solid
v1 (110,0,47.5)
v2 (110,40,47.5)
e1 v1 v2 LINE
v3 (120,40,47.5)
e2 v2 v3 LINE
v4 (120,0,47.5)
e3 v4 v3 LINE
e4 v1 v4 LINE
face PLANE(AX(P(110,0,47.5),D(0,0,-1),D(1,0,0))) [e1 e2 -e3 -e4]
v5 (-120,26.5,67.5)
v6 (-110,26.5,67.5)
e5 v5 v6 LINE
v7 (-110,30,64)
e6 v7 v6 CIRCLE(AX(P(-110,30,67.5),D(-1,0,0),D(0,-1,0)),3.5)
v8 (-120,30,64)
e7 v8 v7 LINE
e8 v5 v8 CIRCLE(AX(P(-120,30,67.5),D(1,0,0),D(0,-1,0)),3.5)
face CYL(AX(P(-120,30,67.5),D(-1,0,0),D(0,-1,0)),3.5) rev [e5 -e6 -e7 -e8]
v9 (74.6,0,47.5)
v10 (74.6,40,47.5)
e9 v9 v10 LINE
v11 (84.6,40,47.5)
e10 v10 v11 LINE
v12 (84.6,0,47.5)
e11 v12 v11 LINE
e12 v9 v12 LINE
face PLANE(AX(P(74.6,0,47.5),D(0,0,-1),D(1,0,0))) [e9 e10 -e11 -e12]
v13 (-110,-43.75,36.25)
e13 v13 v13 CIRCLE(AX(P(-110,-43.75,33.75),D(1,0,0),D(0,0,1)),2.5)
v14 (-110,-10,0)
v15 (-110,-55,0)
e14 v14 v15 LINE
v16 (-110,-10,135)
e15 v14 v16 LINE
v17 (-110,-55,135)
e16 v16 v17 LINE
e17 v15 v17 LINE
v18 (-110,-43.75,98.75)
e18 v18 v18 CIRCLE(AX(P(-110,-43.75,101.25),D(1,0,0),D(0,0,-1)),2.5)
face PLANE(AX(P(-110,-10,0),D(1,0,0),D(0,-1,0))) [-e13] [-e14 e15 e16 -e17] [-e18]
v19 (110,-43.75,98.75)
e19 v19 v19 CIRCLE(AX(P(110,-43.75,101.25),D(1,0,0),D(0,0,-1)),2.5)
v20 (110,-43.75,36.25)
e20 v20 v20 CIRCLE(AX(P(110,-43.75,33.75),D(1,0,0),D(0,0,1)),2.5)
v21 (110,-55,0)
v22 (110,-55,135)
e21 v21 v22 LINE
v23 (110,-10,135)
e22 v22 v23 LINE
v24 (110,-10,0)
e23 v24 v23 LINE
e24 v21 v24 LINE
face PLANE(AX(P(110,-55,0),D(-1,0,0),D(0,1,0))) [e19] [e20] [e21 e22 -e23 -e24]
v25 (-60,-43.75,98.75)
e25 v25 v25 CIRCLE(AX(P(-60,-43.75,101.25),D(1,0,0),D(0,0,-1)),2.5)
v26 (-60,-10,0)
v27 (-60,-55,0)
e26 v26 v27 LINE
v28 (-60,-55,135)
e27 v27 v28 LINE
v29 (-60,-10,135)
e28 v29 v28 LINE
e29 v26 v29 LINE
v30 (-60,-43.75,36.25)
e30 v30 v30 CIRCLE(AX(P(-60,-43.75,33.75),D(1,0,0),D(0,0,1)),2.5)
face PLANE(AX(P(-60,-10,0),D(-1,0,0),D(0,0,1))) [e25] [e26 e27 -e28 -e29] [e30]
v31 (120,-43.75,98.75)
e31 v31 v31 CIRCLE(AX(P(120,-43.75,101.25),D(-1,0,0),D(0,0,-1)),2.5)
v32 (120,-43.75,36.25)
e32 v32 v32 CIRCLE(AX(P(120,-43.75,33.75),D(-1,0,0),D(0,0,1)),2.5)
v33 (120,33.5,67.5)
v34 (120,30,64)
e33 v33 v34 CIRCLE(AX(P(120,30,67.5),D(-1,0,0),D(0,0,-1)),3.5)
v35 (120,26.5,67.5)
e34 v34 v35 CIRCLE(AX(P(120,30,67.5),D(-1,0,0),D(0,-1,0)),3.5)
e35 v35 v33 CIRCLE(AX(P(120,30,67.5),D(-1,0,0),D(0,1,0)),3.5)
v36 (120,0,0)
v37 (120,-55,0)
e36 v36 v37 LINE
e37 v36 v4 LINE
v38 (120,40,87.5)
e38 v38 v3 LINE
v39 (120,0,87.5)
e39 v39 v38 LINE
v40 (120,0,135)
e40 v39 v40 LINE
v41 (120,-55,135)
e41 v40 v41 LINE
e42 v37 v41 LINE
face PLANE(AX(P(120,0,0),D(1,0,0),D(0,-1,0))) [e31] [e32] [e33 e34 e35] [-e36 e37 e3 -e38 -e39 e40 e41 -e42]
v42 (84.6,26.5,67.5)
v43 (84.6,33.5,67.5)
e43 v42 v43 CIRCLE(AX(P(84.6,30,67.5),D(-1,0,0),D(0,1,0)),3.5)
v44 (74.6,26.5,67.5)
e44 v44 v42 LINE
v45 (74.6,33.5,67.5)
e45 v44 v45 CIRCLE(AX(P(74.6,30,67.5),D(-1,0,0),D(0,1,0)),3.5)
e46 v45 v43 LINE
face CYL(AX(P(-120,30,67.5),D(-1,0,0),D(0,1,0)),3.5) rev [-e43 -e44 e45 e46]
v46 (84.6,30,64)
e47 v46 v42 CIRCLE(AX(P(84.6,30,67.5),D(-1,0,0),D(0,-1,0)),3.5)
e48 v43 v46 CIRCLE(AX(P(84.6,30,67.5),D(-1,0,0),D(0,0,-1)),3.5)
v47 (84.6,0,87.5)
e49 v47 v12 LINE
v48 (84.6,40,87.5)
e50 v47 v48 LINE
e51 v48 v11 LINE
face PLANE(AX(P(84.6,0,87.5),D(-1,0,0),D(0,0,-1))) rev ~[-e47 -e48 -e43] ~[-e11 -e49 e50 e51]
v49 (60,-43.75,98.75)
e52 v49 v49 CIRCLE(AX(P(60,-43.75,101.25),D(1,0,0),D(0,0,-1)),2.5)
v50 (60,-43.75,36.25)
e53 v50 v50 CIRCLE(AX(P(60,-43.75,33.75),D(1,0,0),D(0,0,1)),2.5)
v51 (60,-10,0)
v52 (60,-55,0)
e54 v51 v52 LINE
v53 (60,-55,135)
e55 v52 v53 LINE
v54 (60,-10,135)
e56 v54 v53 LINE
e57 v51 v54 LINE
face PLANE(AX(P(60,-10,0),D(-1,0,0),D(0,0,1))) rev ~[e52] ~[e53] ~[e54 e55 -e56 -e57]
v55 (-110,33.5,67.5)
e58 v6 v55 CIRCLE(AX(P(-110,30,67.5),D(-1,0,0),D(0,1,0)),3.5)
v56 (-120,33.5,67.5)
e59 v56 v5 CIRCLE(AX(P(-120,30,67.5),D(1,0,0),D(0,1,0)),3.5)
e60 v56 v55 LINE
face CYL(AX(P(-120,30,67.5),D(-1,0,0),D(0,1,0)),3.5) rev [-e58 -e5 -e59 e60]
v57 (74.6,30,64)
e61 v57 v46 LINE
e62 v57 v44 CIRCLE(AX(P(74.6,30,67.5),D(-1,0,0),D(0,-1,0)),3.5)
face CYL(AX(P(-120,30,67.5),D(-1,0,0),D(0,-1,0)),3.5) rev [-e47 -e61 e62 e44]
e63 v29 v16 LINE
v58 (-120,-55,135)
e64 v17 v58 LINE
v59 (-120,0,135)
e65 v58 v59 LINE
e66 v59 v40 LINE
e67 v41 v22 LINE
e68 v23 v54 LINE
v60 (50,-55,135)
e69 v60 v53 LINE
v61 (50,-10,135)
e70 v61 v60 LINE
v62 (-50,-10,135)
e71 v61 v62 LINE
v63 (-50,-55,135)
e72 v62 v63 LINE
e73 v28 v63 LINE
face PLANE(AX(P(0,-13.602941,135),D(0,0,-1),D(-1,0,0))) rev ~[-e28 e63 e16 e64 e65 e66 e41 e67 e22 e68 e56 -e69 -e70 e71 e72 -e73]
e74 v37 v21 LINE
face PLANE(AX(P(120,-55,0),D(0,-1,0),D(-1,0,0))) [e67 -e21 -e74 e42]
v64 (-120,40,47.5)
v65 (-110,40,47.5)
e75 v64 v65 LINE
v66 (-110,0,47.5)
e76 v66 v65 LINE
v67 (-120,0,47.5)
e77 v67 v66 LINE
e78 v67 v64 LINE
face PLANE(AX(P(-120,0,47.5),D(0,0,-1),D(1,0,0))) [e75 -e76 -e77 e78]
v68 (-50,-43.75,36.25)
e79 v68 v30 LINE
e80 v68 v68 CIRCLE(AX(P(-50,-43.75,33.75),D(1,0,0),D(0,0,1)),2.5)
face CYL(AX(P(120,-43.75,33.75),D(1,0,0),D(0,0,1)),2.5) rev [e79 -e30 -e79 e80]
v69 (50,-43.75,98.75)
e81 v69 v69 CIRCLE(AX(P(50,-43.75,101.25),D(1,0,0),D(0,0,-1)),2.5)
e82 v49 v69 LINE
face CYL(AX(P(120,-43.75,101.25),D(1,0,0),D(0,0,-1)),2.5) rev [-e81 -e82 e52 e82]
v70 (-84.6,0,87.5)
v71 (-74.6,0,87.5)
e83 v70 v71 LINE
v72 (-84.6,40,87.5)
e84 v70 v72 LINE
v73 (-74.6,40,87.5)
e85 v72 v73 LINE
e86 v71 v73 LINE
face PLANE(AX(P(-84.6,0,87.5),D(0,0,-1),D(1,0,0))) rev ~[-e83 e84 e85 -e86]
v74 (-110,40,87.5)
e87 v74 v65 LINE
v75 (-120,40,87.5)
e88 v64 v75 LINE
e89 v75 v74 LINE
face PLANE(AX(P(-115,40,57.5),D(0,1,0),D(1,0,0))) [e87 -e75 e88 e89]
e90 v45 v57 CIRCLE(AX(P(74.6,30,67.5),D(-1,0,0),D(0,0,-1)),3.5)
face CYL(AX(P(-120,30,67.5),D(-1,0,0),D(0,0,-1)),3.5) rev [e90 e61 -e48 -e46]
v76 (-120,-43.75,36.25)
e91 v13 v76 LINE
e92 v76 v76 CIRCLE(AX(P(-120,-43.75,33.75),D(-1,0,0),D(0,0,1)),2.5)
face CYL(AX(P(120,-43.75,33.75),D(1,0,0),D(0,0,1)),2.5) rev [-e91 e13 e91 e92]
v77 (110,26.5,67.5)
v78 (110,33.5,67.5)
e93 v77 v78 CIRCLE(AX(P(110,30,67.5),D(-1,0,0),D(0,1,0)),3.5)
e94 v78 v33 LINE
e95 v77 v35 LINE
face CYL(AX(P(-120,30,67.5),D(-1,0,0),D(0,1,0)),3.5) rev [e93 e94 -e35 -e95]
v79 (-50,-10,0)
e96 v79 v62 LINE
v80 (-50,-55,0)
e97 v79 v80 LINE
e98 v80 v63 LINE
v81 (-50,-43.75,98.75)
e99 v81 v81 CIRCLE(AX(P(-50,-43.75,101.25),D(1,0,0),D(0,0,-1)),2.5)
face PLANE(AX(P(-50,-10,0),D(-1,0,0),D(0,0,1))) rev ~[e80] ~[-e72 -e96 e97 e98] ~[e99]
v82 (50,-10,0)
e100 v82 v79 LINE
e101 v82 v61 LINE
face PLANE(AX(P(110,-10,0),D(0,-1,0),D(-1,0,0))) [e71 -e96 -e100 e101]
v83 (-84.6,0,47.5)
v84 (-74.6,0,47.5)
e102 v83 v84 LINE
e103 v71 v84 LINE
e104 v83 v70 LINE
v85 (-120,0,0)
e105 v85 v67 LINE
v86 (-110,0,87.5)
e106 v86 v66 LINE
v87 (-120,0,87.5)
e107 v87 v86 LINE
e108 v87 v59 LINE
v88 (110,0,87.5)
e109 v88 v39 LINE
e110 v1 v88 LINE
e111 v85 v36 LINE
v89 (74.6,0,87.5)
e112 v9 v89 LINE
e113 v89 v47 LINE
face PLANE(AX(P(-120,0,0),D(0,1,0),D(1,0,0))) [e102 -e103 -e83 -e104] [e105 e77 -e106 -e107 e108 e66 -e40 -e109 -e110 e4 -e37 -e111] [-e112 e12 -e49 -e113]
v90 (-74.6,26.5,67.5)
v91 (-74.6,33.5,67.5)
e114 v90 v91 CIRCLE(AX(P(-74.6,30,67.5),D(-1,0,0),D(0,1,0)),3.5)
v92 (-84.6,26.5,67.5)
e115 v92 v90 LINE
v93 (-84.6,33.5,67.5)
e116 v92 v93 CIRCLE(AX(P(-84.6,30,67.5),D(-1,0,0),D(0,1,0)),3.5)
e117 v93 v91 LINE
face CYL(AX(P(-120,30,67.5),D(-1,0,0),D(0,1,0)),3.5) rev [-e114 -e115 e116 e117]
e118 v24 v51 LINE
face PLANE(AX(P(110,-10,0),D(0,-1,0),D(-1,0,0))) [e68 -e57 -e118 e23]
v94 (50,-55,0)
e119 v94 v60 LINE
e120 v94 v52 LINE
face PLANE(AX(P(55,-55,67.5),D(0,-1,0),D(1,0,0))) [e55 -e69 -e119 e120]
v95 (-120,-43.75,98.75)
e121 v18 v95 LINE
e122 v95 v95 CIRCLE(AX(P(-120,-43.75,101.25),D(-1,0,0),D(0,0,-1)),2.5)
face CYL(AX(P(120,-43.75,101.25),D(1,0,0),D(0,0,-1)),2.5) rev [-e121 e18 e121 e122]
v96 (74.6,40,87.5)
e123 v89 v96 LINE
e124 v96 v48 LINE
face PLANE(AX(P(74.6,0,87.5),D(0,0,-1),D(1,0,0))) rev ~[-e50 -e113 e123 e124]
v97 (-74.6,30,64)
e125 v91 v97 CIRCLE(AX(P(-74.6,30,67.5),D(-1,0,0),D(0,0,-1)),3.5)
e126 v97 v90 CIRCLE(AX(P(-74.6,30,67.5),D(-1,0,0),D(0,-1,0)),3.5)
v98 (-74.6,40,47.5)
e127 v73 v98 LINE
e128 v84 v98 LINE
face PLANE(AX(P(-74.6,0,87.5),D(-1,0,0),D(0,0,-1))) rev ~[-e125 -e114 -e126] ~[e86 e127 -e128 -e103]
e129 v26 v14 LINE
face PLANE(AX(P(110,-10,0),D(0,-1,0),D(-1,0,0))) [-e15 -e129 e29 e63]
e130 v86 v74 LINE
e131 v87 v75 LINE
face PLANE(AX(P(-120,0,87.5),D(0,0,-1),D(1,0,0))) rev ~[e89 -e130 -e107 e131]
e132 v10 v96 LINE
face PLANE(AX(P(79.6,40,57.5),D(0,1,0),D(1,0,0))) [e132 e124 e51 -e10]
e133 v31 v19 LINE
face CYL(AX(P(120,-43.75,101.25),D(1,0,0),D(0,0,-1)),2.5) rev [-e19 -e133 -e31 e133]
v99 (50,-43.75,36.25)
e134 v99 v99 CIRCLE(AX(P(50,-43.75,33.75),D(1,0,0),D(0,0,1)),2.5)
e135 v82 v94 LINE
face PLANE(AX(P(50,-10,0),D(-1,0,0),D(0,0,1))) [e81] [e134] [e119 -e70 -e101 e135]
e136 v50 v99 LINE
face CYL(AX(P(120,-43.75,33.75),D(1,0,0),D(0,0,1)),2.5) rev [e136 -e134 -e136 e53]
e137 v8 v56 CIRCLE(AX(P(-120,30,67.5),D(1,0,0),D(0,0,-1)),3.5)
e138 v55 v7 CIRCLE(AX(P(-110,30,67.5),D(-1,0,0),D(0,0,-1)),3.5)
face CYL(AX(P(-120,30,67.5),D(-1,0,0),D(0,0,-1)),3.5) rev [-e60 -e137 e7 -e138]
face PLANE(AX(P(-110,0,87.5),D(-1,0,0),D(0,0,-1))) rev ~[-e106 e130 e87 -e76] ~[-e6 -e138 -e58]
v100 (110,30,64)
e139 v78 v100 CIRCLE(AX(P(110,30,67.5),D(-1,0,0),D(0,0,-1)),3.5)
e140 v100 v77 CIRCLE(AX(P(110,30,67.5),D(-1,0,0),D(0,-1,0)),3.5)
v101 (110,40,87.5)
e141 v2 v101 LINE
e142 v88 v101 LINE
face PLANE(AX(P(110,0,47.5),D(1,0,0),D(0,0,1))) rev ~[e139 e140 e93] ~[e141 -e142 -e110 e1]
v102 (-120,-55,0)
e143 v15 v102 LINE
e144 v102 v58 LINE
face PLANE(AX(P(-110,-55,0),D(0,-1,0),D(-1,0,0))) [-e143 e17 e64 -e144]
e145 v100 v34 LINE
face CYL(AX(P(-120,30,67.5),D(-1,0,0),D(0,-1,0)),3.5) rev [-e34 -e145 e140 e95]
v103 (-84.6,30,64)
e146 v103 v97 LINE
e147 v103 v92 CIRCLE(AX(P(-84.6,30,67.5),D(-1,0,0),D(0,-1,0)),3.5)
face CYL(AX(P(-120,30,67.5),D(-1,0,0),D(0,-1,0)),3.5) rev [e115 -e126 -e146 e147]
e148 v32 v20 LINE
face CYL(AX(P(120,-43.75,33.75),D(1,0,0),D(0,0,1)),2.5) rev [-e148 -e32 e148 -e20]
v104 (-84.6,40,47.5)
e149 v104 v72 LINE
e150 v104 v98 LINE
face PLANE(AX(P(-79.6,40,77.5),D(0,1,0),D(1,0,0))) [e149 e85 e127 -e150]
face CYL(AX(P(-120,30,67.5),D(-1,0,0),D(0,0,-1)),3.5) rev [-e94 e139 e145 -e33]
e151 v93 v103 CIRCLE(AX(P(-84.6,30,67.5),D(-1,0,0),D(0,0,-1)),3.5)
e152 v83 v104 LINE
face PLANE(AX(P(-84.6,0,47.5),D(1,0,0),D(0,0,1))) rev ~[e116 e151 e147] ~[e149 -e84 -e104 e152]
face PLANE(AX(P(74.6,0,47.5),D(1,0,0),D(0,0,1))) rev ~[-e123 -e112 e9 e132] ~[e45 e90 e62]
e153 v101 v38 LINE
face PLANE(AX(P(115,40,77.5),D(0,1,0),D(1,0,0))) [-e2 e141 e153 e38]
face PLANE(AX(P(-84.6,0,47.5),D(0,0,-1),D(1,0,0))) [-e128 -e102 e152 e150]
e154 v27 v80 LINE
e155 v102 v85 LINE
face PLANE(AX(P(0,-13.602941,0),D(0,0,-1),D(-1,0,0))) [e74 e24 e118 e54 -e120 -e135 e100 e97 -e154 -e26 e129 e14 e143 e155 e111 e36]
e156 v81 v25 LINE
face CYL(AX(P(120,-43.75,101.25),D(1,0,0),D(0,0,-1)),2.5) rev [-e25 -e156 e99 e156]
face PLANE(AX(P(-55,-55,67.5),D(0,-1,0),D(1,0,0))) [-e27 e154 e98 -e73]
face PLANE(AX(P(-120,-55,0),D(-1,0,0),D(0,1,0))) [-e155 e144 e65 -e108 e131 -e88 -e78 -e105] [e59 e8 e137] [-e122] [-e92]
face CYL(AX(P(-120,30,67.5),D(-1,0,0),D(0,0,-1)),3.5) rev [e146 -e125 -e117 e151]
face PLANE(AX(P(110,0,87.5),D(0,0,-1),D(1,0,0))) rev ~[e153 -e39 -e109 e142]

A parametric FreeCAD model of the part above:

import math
import FreeCAD as App
import Part
import Sketcher
from FreeCAD import Vector
Q = App.Units.Quantity

doc = App.newDocument("Part")
body = doc.addObject("PartDesign::Body", "Body")

sketch1 = body.newObject("Sketcher::SketchObject", "Sketch")
sketch1.AttachmentSupport = (doc.getObject("XY_Plane"), [""])
sketch1.MapMode = "FlatFace"
sketch1.addGeometry([
    Part.LineSegment(Vector(120, 0, 0), Vector(-120, 0, 0)),
    Part.LineSegment(Vector(-120, 0, 0), Vector(-120, -55, 0)),
    Part.LineSegment(Vector(-120, -55, 0), Vector(-110, -55, 0)),
    Part.LineSegment(Vector(-110, -55, 0), Vector(-110, -10, 0)),
    Part.LineSegment(Vector(-110, -10, 0), Vector(110, -10, 0)),
    Part.LineSegment(Vector(110, -10, 0), Vector(110, -55, 0)),
    Part.LineSegment(Vector(110, -55, 0), Vector(120, -55, 0)),
    Part.LineSegment(Vector(120, -55, 0), Vector(120, 0, 0)),
], False)
sketch1.addConstraint([
    Sketcher.Constraint("Coincident", 0, 2, 1, 1),
    Sketcher.Constraint("Coincident", 1, 2, 2, 1),
    Sketcher.Constraint("Coincident", 2, 2, 3, 1),
    Sketcher.Constraint("Coincident", 3, 2, 4, 1),
    Sketcher.Constraint("Coincident", 4, 2, 5, 1),
    Sketcher.Constraint("Coincident", 5, 2, 6, 1),
    Sketcher.Constraint("Coincident", 6, 2, 7, 1),
    Sketcher.Constraint("Coincident", 7, 2, 0, 1),
    Sketcher.Constraint("Horizontal", 0),
    Sketcher.Constraint("Vertical", 1),
    Sketcher.Constraint("Horizontal", 2),
    Sketcher.Constraint("Vertical", 3),
    Sketcher.Constraint("Horizontal", 4),
    Sketcher.Constraint("Vertical", 5),
    Sketcher.Constraint("Horizontal", 6),
    Sketcher.Constraint("Vertical", 7),
    Sketcher.Constraint("Symmetric", 0, 2, 7, 2, -1, 1),
    Sketcher.Constraint("Symmetric", 2, 2, 5, 2, -2),
    Sketcher.Constraint("DistanceX", 0, 2, 0, 1, Q("240 mm")),
    Sketcher.Constraint("DistanceX", 2, 1, 2, 2, Q("10 mm")),
    Sketcher.Constraint("DistanceY", 1, 2, 1, 1, Q("55 mm")),
    Sketcher.Constraint("DistanceY", 3, 1, 3, 2, Q("45 mm")),
])
pad1 = body.newObject("PartDesign::Pad", "Pad")
pad1.Profile = sketch1
pad1.Length = 135

sketch2 = body.newObject("Sketcher::SketchObject", "Sketch001")
sketch2.AttachmentSupport = (doc.getObject("XZ_Plane"), [""])
sketch2.MapMode = "FlatFace"
sketch2.AttachmentOffset = App.Placement(Vector(0, 0, 10), App.Rotation())
sketch2.addGeometry([
    Part.LineSegment(Vector(50, 135, 0), Vector(50, 0, 0)),
    Part.LineSegment(Vector(50, 0, 0), Vector(60, 0, 0)),
    Part.LineSegment(Vector(60, 0, 0), Vector(60, 135, 0)),
    Part.LineSegment(Vector(60, 135, 0), Vector(50, 135, 0)),
    Part.LineSegment(Vector(-60, 135, 0), Vector(-60, 0, 0)),
    Part.LineSegment(Vector(-60, 0, 0), Vector(-50, 0, 0)),
    Part.LineSegment(Vector(-50, 0, 0), Vector(-50, 135, 0)),
    Part.LineSegment(Vector(-50, 135, 0), Vector(-60, 135, 0)),
], False)
sketch2.addConstraint([
    Sketcher.Constraint("Coincident", 0, 2, 1, 1),
    Sketcher.Constraint("Coincident", 1, 2, 2, 1),
    Sketcher.Constraint("Coincident", 2, 2, 3, 1),
    Sketcher.Constraint("Coincident", 3, 2, 0, 1),
    Sketcher.Constraint("Coincident", 4, 2, 5, 1),
    Sketcher.Constraint("Coincident", 5, 2, 6, 1),
    Sketcher.Constraint("Coincident", 6, 2, 7, 1),
    Sketcher.Constraint("Coincident", 7, 2, 4, 1),
    Sketcher.Constraint("Vertical", 0),
    Sketcher.Constraint("Horizontal", 1),
    Sketcher.Constraint("Vertical", 2),
    Sketcher.Constraint("Horizontal", 3),
    Sketcher.Constraint("Vertical", 4),
    Sketcher.Constraint("Horizontal", 5),
    Sketcher.Constraint("Vertical", 6),
    Sketcher.Constraint("Horizontal", 7),
    Sketcher.Constraint("Symmetric", 1, 2, 4, 2, -1, 1),
    Sketcher.Constraint("Symmetric", 0, 2, 5, 2, -2),
    Sketcher.Constraint("Horizontal", 3, 2, 6, 2),
    Sketcher.Constraint("DistanceX", 1, 1, 1, 2, Q("10 mm")),
    Sketcher.Constraint("DistanceY", 0, 2, 0, 1, Q("135 mm")),
    Sketcher.Constraint("DistanceX", -1, 1, 0, 2, Q("50 mm")),
])
pad2 = body.newObject("PartDesign::Pad", "Pad001")
pad2.Profile = sketch2
pad2.Length = 45

sketch3 = body.newObject("Sketcher::SketchObject", "Sketch002")
sketch3.AttachmentSupport = (doc.getObject("YZ_Plane"), [""])
sketch3.MapMode = "FlatFace"
sketch3.AttachmentOffset = App.Placement(Vector(0, 0, 110), App.Rotation())
sketch3.addGeometry([
    Part.Circle(Vector(-43.8, 33.8, 0), Vector(0, 0, 1), 2.5),
    Part.Circle(Vector(-43.8, 101.2, 0), Vector(0, 0, 1), 2.5),
], False)
sketch3.addConstraint([
    Sketcher.Constraint("Equal", 0, 1),
    Sketcher.Constraint("Vertical", 0, 3, 1, 3),
    Sketcher.Constraint("Diameter", 0, Q("5 mm")),
    Sketcher.Constraint("DistanceY", 0, 3, 1, 3, Q("67.5 mm")),
    Sketcher.Constraint("DistanceX", 0, 3, -1, 1, Q("43.75 mm")),
    Sketcher.Constraint("DistanceY", -1, 1, 0, 3, Q("33.75 mm")),
])
pocket1 = body.newObject("PartDesign::Pocket", "Pocket")
pocket1.Profile = sketch3
pocket1.Type = "ThroughAll"
pocket1.Midplane = True

sketch4 = body.newObject("Sketcher::SketchObject", "Sketch003")
sketch4.AttachmentSupport = (doc.getObject("XZ_Plane"), [""])
sketch4.MapMode = "FlatFace"
sketch4.addGeometry([
    Part.LineSegment(Vector(-120, 48, 0), Vector(-120, 88, 0)),
    Part.LineSegment(Vector(-120, 88, 0), Vector(-110, 88, 0)),
    Part.LineSegment(Vector(-110, 88, 0), Vector(-110, 48, 0)),
    Part.LineSegment(Vector(-110, 48, 0), Vector(-120, 48, 0)),
    Part.LineSegment(Vector(-85, 88, 0), Vector(-75, 88, 0)),
    Part.LineSegment(Vector(-75, 88, 0), Vector(-75, 48, 0)),
    Part.LineSegment(Vector(-75, 48, 0), Vector(-85, 48, 0)),
    Part.LineSegment(Vector(-85, 48, 0), Vector(-85, 88, 0)),
    Part.LineSegment(Vector(75, 48, 0), Vector(75, 88, 0)),
    Part.LineSegment(Vector(75, 88, 0), Vector(85, 88, 0)),
    Part.LineSegment(Vector(85, 88, 0), Vector(85, 48, 0)),
    Part.LineSegment(Vector(85, 48, 0), Vector(75, 48, 0)),
    Part.LineSegment(Vector(110, 88, 0), Vector(120, 88, 0)),
    Part.LineSegment(Vector(120, 88, 0), Vector(120, 48, 0)),
    Part.LineSegment(Vector(120, 48, 0), Vector(110, 48, 0)),
    Part.LineSegment(Vector(110, 48, 0), Vector(110, 88, 0)),
], False)
sketch4.addConstraint([
    Sketcher.Constraint("Coincident", 0, 2, 1, 1),
    Sketcher.Constraint("Coincident", 1, 2, 2, 1),
    Sketcher.Constraint("Coincident", 2, 2, 3, 1),
    Sketcher.Constraint("Coincident", 3, 2, 0, 1),
    Sketcher.Constraint("Coincident", 4, 2, 5, 1),
    Sketcher.Constraint("Coincident", 5, 2, 6, 1),
    Sketcher.Constraint("Coincident", 6, 2, 7, 1),
    Sketcher.Constraint("Coincident", 7, 2, 4, 1),
    Sketcher.Constraint("Coincident", 8, 2, 9, 1),
    Sketcher.Constraint("Coincident", 9, 2, 10, 1),
    Sketcher.Constraint("Coincident", 10, 2, 11, 1),
    Sketcher.Constraint("Coincident", 11, 2, 8, 1),
    Sketcher.Constraint("Coincident", 12, 2, 13, 1),
    Sketcher.Constraint("Coincident", 13, 2, 14, 1),
    Sketcher.Constraint("Coincident", 14, 2, 15, 1),
    Sketcher.Constraint("Coincident", 15, 2, 12, 1),
    Sketcher.Constraint("Vertical", 0),
    Sketcher.Constraint("Horizontal", 1),
    Sketcher.Constraint("Vertical", 2),
    Sketcher.Constraint("Horizontal", 3),
    Sketcher.Constraint("Horizontal", 4),
    Sketcher.Constraint("Vertical", 5),
    Sketcher.Constraint("Horizontal", 6),
    Sketcher.Constraint("Vertical", 7),
    Sketcher.Constraint("Vertical", 8),
    Sketcher.Constraint("Horizontal", 9),
    Sketcher.Constraint("Vertical", 10),
    Sketcher.Constraint("Horizontal", 11),
    Sketcher.Constraint("Horizontal", 12),
    Sketcher.Constraint("Vertical", 13),
    Sketcher.Constraint("Horizontal", 14),
    Sketcher.Constraint("Vertical", 15),
    Sketcher.Constraint("Symmetric", 4, 2, 8, 2, -2),
    Sketcher.Constraint("Symmetric", 6, 2, 10, 2, -2),
    Sketcher.Constraint("Symmetric", 0, 2, 12, 2, -2),
    Sketcher.Constraint("Symmetric", 2, 2, 14, 2, -2),
    Sketcher.Constraint("Horizontal", 1, 2, 4, 2),
    Sketcher.Constraint("Horizontal", 3, 2, 5, 2),
    Sketcher.Constraint("Equal", 3, 4),
    Sketcher.Constraint("DistanceX", 1, 1, 1, 2, Q("10 mm")),
    Sketcher.Constraint("DistanceY", 0, 1, 0, 2, Q("40 mm")),
    Sketcher.Constraint("DistanceX", 0, 2, -1, 1, Q("120 mm")),
    Sketcher.Constraint("DistanceY", -1, 1, 0, 2, Q("87.5 mm")),
    Sketcher.Constraint("DistanceX", 4, 2, -1, 1, Q("74.6 mm")),
])
pad3 = body.newObject("PartDesign::Pad", "Pad002")
pad3.Profile = sketch4
pad3.Length = 40
pad3.Reversed = True

sketch5 = body.newObject("Sketcher::SketchObject", "Sketch004")
sketch5.AttachmentSupport = (doc.getObject("YZ_Plane"), [""])
sketch5.MapMode = "FlatFace"
sketch5.AttachmentOffset = App.Placement(Vector(0, 0, 120), App.Rotation())
sketch5.addGeometry([
    Part.ArcOfCircle(Part.Circle(Vector(30, 67.5, 0), Vector(0, 0, 1), 3.5), math.radians(0), math.radians(180)),
    Part.ArcOfCircle(Part.Circle(Vector(30, 67.5, 0), Vector(0, 0, 1), 3.5), math.radians(-180), math.radians(-90)),
    Part.ArcOfCircle(Part.Circle(Vector(30, 67.5, 0), Vector(0, 0, 1), 3.5), math.radians(-90), math.radians(0)),
], False)
sketch5.addConstraint([
    Sketcher.Constraint("Tangent", 0, 2, 1, 1),
    Sketcher.Constraint("Tangent", 1, 2, 2, 1),
    Sketcher.Constraint("Tangent", 2, 2, 0, 1),
    Sketcher.Constraint("Horizontal", 2, 3, 0, 2),
    Sketcher.Constraint("Horizontal", 0, 2, 2, 2),
    Sketcher.Constraint("Vertical", 2, 3, 1, 2),
    Sketcher.Constraint("Radius", 0, Q("3.5 mm")),
    Sketcher.Constraint("DistanceX", -1, 1, 0, 3, Q("30 mm")),
    Sketcher.Constraint("DistanceY", -1, 1, 1, 2, Q("64 mm")),
])
pocket2 = body.newObject("PartDesign::Pocket", "Pocket001")
pocket2.Profile = sketch5
pocket2.Type = "ThroughAll"
pocket2.Midplane = True

doc.recompute()
